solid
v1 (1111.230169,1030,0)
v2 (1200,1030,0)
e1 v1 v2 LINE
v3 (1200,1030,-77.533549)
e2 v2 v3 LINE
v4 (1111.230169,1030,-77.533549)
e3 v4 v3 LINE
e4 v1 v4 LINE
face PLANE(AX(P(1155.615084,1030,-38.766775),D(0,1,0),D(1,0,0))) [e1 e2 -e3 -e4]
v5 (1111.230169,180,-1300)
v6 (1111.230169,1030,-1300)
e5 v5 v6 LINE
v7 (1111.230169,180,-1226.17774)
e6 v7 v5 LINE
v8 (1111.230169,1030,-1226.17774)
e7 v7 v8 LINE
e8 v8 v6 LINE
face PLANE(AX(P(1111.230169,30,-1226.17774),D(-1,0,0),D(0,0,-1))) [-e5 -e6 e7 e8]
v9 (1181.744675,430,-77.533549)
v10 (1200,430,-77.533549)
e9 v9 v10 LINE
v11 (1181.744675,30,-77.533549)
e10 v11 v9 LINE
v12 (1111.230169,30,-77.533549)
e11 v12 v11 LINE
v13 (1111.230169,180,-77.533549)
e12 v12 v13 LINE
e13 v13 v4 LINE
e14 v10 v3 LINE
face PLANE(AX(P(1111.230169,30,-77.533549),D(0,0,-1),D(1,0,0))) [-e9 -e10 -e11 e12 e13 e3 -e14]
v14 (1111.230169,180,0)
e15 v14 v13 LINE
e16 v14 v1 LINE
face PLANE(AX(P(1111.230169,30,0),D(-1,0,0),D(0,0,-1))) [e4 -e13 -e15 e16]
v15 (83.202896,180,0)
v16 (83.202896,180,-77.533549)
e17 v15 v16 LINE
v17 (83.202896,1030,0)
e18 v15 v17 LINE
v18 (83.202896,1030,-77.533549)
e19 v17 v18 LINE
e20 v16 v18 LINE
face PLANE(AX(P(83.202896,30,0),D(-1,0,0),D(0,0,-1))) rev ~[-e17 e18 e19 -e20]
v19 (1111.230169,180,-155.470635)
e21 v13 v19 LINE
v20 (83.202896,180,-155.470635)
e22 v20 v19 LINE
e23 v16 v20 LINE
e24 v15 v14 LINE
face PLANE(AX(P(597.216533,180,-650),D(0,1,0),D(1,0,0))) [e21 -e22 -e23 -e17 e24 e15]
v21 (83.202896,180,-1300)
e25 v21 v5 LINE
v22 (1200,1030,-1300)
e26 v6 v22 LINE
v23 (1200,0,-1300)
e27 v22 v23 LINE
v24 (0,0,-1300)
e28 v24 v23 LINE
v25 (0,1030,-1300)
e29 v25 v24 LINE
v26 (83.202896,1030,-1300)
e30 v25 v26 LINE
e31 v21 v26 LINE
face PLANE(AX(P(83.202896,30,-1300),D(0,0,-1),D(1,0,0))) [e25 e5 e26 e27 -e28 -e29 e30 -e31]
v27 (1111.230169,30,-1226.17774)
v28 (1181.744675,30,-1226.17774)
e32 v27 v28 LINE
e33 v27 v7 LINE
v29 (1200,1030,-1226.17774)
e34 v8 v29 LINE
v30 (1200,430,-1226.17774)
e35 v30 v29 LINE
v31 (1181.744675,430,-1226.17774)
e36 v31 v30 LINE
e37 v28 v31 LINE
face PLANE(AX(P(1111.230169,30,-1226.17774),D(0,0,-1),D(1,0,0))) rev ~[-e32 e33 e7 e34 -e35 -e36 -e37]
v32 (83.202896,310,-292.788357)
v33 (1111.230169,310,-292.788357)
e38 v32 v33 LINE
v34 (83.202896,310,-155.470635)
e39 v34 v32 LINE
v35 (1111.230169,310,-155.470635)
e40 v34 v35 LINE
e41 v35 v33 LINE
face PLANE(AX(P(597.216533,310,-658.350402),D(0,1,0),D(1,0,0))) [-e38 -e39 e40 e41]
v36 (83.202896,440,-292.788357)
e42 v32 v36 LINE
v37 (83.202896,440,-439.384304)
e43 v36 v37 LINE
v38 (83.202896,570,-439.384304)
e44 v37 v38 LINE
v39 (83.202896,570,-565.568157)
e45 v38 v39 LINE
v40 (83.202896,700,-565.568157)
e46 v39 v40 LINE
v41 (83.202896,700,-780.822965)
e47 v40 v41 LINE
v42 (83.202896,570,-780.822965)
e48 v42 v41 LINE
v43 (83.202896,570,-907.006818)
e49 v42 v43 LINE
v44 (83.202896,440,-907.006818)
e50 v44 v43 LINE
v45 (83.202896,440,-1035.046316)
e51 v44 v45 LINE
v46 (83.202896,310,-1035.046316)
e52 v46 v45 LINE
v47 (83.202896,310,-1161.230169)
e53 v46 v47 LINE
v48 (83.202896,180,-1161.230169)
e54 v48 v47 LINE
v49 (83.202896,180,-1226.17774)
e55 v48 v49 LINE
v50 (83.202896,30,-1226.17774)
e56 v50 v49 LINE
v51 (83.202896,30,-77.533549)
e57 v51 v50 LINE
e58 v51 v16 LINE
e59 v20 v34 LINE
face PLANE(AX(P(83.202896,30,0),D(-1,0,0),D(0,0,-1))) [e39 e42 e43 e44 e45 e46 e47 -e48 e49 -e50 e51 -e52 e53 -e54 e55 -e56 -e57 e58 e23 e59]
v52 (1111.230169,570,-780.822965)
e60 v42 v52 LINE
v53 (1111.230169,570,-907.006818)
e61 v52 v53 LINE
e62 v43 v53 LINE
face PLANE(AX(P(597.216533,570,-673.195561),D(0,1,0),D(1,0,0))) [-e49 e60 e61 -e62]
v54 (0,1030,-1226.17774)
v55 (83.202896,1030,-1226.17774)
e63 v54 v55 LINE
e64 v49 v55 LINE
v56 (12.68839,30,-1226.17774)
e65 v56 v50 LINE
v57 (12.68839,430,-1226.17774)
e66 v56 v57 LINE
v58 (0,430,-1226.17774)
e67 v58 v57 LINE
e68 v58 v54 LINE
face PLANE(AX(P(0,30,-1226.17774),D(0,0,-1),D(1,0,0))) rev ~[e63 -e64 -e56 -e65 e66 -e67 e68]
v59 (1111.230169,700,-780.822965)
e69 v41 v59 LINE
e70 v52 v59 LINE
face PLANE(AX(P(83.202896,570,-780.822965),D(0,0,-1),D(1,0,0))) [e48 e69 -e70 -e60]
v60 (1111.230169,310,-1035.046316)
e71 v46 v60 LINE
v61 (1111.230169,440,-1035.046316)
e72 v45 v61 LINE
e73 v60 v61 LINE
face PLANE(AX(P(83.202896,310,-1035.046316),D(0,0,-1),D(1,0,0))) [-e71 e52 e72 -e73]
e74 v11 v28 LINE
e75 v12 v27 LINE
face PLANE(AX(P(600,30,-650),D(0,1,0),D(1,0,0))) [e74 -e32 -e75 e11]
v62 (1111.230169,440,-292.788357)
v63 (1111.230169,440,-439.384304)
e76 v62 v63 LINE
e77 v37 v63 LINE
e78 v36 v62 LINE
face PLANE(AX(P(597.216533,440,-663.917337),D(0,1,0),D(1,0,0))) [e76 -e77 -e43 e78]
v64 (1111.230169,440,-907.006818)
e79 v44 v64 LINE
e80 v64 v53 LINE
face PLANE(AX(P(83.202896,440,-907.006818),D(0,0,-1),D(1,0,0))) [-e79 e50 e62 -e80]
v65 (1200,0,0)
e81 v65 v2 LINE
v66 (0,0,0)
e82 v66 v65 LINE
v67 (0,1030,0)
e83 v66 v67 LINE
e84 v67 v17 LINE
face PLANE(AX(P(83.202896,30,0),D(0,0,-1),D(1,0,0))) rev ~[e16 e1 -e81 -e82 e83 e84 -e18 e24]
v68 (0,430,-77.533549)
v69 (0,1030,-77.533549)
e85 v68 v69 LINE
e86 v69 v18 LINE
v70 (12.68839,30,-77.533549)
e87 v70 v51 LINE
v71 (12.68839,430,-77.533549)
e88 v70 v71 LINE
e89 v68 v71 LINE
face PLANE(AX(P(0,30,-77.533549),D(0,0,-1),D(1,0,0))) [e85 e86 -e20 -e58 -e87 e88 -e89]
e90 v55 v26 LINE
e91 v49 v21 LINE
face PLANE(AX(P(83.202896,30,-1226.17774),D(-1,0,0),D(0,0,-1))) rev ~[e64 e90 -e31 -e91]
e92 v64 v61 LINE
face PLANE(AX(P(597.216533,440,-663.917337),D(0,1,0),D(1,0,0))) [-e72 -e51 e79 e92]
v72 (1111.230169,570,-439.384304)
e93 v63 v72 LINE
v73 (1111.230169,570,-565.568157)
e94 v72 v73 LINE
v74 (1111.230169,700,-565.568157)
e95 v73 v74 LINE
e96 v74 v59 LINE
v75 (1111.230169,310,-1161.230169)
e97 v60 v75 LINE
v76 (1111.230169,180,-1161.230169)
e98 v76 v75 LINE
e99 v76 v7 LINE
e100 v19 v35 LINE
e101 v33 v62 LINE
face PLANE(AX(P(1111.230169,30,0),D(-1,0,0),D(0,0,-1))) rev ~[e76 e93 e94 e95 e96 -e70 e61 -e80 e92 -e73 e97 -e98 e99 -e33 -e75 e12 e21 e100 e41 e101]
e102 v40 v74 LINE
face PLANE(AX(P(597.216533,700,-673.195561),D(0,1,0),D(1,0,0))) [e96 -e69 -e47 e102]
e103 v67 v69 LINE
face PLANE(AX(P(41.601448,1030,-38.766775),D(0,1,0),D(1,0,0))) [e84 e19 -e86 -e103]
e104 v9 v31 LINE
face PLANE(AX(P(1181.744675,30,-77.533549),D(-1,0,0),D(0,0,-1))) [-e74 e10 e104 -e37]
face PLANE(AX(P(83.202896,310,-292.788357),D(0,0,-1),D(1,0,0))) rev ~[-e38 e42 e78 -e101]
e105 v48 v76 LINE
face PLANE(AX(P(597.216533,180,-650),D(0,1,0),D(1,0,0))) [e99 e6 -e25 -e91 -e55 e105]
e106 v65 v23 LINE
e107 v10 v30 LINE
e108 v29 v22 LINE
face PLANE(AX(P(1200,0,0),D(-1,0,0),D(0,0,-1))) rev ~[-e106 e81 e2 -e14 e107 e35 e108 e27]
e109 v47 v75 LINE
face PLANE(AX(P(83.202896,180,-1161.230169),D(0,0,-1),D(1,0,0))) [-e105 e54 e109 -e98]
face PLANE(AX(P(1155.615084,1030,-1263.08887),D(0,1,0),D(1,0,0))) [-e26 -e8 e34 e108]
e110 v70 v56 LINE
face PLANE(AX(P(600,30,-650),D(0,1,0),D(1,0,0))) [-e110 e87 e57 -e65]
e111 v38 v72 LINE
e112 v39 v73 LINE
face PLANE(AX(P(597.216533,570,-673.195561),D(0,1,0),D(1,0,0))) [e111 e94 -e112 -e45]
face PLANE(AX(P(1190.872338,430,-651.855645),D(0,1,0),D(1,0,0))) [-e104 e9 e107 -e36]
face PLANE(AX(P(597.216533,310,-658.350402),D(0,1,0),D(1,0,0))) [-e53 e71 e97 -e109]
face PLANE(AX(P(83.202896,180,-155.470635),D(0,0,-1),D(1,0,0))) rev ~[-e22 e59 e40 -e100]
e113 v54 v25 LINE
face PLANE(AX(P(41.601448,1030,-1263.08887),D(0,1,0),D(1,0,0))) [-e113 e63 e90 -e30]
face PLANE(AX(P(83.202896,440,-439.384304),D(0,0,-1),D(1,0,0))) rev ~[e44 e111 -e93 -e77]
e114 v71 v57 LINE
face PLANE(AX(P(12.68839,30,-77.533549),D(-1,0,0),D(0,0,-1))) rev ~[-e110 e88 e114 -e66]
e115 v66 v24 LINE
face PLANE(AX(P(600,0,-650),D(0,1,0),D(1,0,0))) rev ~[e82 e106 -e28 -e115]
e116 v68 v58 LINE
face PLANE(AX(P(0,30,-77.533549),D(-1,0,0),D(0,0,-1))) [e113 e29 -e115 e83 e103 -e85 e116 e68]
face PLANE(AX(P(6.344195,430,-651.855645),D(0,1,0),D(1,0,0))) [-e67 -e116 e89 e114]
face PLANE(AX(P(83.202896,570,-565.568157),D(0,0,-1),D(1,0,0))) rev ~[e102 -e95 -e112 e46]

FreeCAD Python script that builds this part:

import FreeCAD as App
import Part
import Sketcher
from FreeCAD import Vector
Q = App.Units.Quantity

doc = App.newDocument("Part")
params = doc.addObject("Spreadsheet::Sheet", "Params")
for row, (alias, value) in enumerate([
    ("sketch1_width", "1200 mm"),
    ("sketch1_height", "1300 mm"),
    ("pad1_length", "30 mm"),
    ("pad2_length", "1000 mm"),
    ("pad3_length", "400 mm"),
    ("sketch4_height", "1300 mm"),
    ("pad4_length", "150 mm"),
    ("pad5_length", "130 mm"),
    ("pad6_length", "130 mm"),
    ("pad7_length", "130 mm"),
    ("pad8_length", "130 mm"),
], start=1):
    params.set(f"A{row}", alias)
    params.set(f"B{row}", "=" + value)
    params.setAlias(f"B{row}", alias)

body = doc.addObject("PartDesign::Body", "Body")

sketch1 = body.newObject("Sketcher::SketchObject", "Sketch")
sketch1.AttachmentSupport = (doc.getObject("XZ_Plane"), [""])
sketch1.MapMode = "FlatFace"
sketch1.addGeometry([
    Part.LineSegment(Vector(0, -1300, 0), Vector(0, 0, 0)),
    Part.LineSegment(Vector(0, 0, 0), Vector(1200, 0, 0)),
    Part.LineSegment(Vector(1200, 0, 0), Vector(1200, -1300, 0)),
    Part.LineSegment(Vector(1200, -1300, 0), Vector(0, -1300, 0)),
], False)
sketch1.addConstraint([
    Sketcher.Constraint("Coincident", 0, 2, 1, 1),
    Sketcher.Constraint("Coincident", 1, 2, 2, 1),
    Sketcher.Constraint("Coincident", 2, 2, 3, 1),
    Sketcher.Constraint("Coincident", 3, 2, 0, 1),
    Sketcher.Constraint("Vertical", 0),
    Sketcher.Constraint("Horizontal", 1),
    Sketcher.Constraint("Vertical", 2),
    Sketcher.Constraint("Horizontal", 3),
    Sketcher.Constraint("Coincident", 0, 2, -1, 1),
    Sketcher.Constraint("DistanceX", 1, 1, 1, 2, Q("1200 mm")),
    Sketcher.Constraint("DistanceY", 0, 1, 0, 2, Q("1300 mm")),
])
sketch1.setExpression("Constraints[9]", "Params.sketch1_width")
sketch1.setExpression("Constraints[10]", "Params.sketch1_height")
pad1 = body.newObject("PartDesign::Pad", "Pad")
pad1.Profile = sketch1
pad1.setExpression("Length", "Params.pad1_length")
pad1.Reversed = True

sketch2 = body.newObject("Sketcher::SketchObject", "Sketch001")
sketch2.AttachmentSupport = (doc.getObject("XZ_Plane"), [""])
sketch2.MapMode = "FlatFace"
sketch2.AttachmentOffset = App.Placement(Vector(0, 0, -30), App.Rotation())
sketch2.addGeometry([
    Part.LineSegment(Vector(0, -1300, 0), Vector(0, -1226, 0)),
    Part.LineSegment(Vector(0, -1226, 0), Vector(83, -1226, 0)),
    Part.LineSegment(Vector(83, -1226, 0), Vector(83, -1300, 0)),
    Part.LineSegment(Vector(83, -1300, 0), Vector(0, -1300, 0)),
    Part.LineSegment(Vector(1111, -1300, 0), Vector(1111, -1226, 0)),
    Part.LineSegment(Vector(1111, -1226, 0), Vector(1200, -1226, 0)),
    Part.LineSegment(Vector(1200, -1226, 0), Vector(1200, -1300, 0)),
    Part.LineSegment(Vector(1200, -1300, 0), Vector(1111, -1300, 0)),
    Part.LineSegment(Vector(0, -78, 0), Vector(0, 0, 0)),
    Part.LineSegment(Vector(0, 0, 0), Vector(83, 0, 0)),
    Part.LineSegment(Vector(83, 0, 0), Vector(83, -78, 0)),
    Part.LineSegment(Vector(83, -78, 0), Vector(0, -78, 0)),
    Part.LineSegment(Vector(1111, -78, 0), Vector(1111, 0, 0)),
    Part.LineSegment(Vector(1111, 0, 0), Vector(1200, 0, 0)),
    Part.LineSegment(Vector(1200, 0, 0), Vector(1200, -78, 0)),
    Part.LineSegment(Vector(1200, -78, 0), Vector(1111, -78, 0)),
], False)
sketch2.addConstraint([
    Sketcher.Constraint("Coincident", 0, 2, 1, 1),
    Sketcher.Constraint("Coincident", 1, 2, 2, 1),
    Sketcher.Constraint("Coincident", 2, 2, 3, 1),
    Sketcher.Constraint("Coincident", 3, 2, 0, 1),
    Sketcher.Constraint("Coincident", 4, 2, 5, 1),
    Sketcher.Constraint("Coincident", 5, 2, 6, 1),
    Sketcher.Constraint("Coincident", 6, 2, 7, 1),
    Sketcher.Constraint("Coincident", 7, 2, 4, 1),
    Sketcher.Constraint("Coincident", 8, 2, 9, 1),
    Sketcher.Constraint("Coincident", 9, 2, 10, 1),
    Sketcher.Constraint("Coincident", 10, 2, 11, 1),
    Sketcher.Constraint("Coincident", 11, 2, 8, 1),
    Sketcher.Constraint("Coincident", 12, 2, 13, 1),
    Sketcher.Constraint("Coincident", 13, 2, 14, 1),
    Sketcher.Constraint("Coincident", 14, 2, 15, 1),
    Sketcher.Constraint("Coincident", 15, 2, 12, 1),
    Sketcher.Constraint("Vertical", 0),
    Sketcher.Constraint("Horizontal", 1),
    Sketcher.Constraint("Vertical", 2),
    Sketcher.Constraint("Horizontal", 3),
    Sketcher.Constraint("Vertical", 4),
    Sketcher.Constraint("Horizontal", 5),
    Sketcher.Constraint("Vertical", 6),
    Sketcher.Constraint("Horizontal", 7),
    Sketcher.Constraint("Vertical", 8),
    Sketcher.Constraint("Horizontal", 9),
    Sketcher.Constraint("Vertical", 10),
    Sketcher.Constraint("Horizontal", 11),
    Sketcher.Constraint("Vertical", 12),
    Sketcher.Constraint("Horizontal", 13),
    Sketcher.Constraint("Vertical", 14),
    Sketcher.Constraint("Horizontal", 15),
    Sketcher.Constraint("Coincident", 8, 2, -1, 1),
    Sketcher.Constraint("PointOnObject", 0, 2, -2),
    Sketcher.Constraint("PointOnObject", 12, 2, -1),
    Sketcher.Constraint("Horizontal", 1, 2, 4, 2),
    Sketcher.Constraint("Horizontal", 3, 2, 6, 2),
    Sketcher.Constraint("Horizontal", 11, 2, 14, 2),
    Sketcher.Constraint("Vertical", 2, 2, 9, 2),
    Sketcher.Constraint("Vertical", 7, 2, 12, 2),
    Sketcher.Constraint("Vertical", 6, 2, 13, 2),
    Sketcher.Constraint("DistanceY", 2, 2, -1, 1, Q("1300 mm")),
    Sketcher.Constraint("DistanceX", -1, 1, 5, 2, Q("1200 mm")),
    Sketcher.Constraint("DistanceX", 5, 1, 5, 2, Q("88.769831 mm")),
    Sketcher.Constraint("DistanceY", 0, 1, 0, 2, Q("73.82226 mm")),
    Sketcher.Constraint("DistanceY", 8, 1, 8, 2, Q("77.533549 mm")),
    Sketcher.Constraint("DistanceX", 1, 1, 1, 2, Q("83.202896 mm")),
])
pad2 = body.newObject("PartDesign::Pad", "Pad001")
pad2.Profile = sketch2
pad2.setExpression("Length", "Params.pad2_length")
pad2.Reversed = True

sketch3 = body.newObject("Sketcher::SketchObject", "Sketch002")
sketch3.AttachmentSupport = (doc.getObject("XZ_Plane"), [""])
sketch3.MapMode = "FlatFace"
sketch3.AttachmentOffset = App.Placement(Vector(0, 0, -30), App.Rotation())
sketch3.addGeometry([
    Part.LineSegment(Vector(0, -1226, 0), Vector(0, -78, 0)),
    Part.LineSegment(Vector(0, -78, 0), Vector(13, -78, 0)),
    Part.LineSegment(Vector(13, -78, 0), Vector(13, -1226, 0)),
    Part.LineSegment(Vector(13, -1226, 0), Vector(0, -1226, 0)),
    Part.LineSegment(Vector(1182, -1226, 0), Vector(1182, -78, 0)),
    Part.LineSegment(Vector(1182, -78, 0), Vector(1200, -78, 0)),
    Part.LineSegment(Vector(1200, -78, 0), Vector(1200, -1226, 0)),
    Part.LineSegment(Vector(1200, -1226, 0), Vector(1182, -1226, 0)),
], False)
sketch3.addConstraint([
    Sketcher.Constraint("Coincident", 0, 2, 1, 1),
    Sketcher.Constraint("Coincident", 1, 2, 2, 1),
    Sketcher.Constraint("Coincident", 2, 2, 3, 1),
    Sketcher.Constraint("Coincident", 3, 2, 0, 1),
    Sketcher.Constraint("Coincident", 4, 2, 5, 1),
    Sketcher.Constraint("Coincident", 5, 2, 6, 1),
    Sketcher.Constraint("Coincident", 6, 2, 7, 1),
    Sketcher.Constraint("Coincident", 7, 2, 4, 1),
    Sketcher.Constraint("Vertical", 0),
    Sketcher.Constraint("Horizontal", 1),
    Sketcher.Constraint("Vertical", 2),
    Sketcher.Constraint("Horizontal", 3),
    Sketcher.Constraint("Vertical", 4),
    Sketcher.Constraint("Horizontal", 5),
    Sketcher.Constraint("Vertical", 6),
    Sketcher.Constraint("Horizontal", 7),
    Sketcher.Constraint("PointOnObject", 0, 2, -2),
    Sketcher.Constraint("Horizontal", 1, 2, 4, 2),
    Sketcher.Constraint("Horizontal", 3, 2, 6, 2),
    Sketcher.Constraint("DistanceX", -1, 1, 5, 2, Q("1200 mm")),
    Sketcher.Constraint("DistanceX", 1, 1, 1, 2, Q("12.68839 mm")),
    Sketcher.Constraint("DistanceY", 0, 1, 0, 2, Q("1148.644191 mm")),
    Sketcher.Constraint("DistanceX", 5, 1, 5, 2, Q("18.255325 mm")),
    Sketcher.Constraint("DistanceY", 0, 2, -1, 1, Q("77.533549 mm")),
])
pad3 = body.newObject("PartDesign::Pad", "Pad002")
pad3.Profile = sketch3
pad3.setExpression("Length", "Params.pad3_length")
pad3.Reversed = True

sketch4 = body.newObject("Sketcher::SketchObject", "Sketch003")
sketch4.AttachmentSupport = (doc.getObject("XZ_Plane"), [""])
sketch4.MapMode = "FlatFace"
sketch4.AttachmentOffset = App.Placement(Vector(0, 0, -30), App.Rotation())
sketch4.addGeometry([
    Part.LineSegment(Vector(83, -1300, 0), Vector(83, 0, 0)),
    Part.LineSegment(Vector(83, 0, 0), Vector(1111, 0, 0)),
    Part.LineSegment(Vector(1111, 0, 0), Vector(1111, -1300, 0)),
    Part.LineSegment(Vector(1111, -1300, 0), Vector(83, -1300, 0)),
], False)
sketch4.addConstraint([
    Sketcher.Constraint("Coincident", 0, 2, 1, 1),
    Sketcher.Constraint("Coincident", 1, 2, 2, 1),
    Sketcher.Constraint("Coincident", 2, 2, 3, 1),
    Sketcher.Constraint("Coincident", 3, 2, 0, 1),
    Sketcher.Constraint("Vertical", 0),
    Sketcher.Constraint("Horizontal", 1),
    Sketcher.Constraint("Vertical", 2),
    Sketcher.Constraint("Horizontal", 3),
    Sketcher.Constraint("PointOnObject", 0, 2, -1),
    Sketcher.Constraint("DistanceY", 0, 1, 0, 2, Q("1300 mm")),
    Sketcher.Constraint("DistanceX", 1, 1, 1, 2, Q("1028.027273 mm")),
    Sketcher.Constraint("DistanceX", -1, 1, 1, 2, Q("1111.230169 mm")),
])
sketch4.setExpression("Constraints[9]", "Params.sketch4_height")
pad4 = body.newObject("PartDesign::Pad", "Pad003")
pad4.Profile = sketch4
pad4.setExpression("Length", "Params.pad4_length")
pad4.Reversed = True

sketch5 = body.newObject("Sketcher::SketchObject", "Sketch004")
sketch5.AttachmentSupport = (doc.getObject("XZ_Plane"), [""])
sketch5.MapMode = "FlatFace"
sketch5.AttachmentOffset = App.Placement(Vector(0, 0, -180), App.Rotation())
sketch5.addGeometry([
    Part.LineSegment(Vector(83, -1161, 0), Vector(83, -155, 0)),
    Part.LineSegment(Vector(83, -155, 0), Vector(1111, -155, 0)),
    Part.LineSegment(Vector(1111, -155, 0), Vector(1111, -1161, 0)),
    Part.LineSegment(Vector(1111, -1161, 0), Vector(83, -1161, 0)),
], False)
sketch5.addConstraint([
    Sketcher.Constraint("Coincident", 0, 2, 1, 1),
    Sketcher.Constraint("Coincident", 1, 2, 2, 1),
    Sketcher.Constraint("Coincident", 2, 2, 3, 1),
    Sketcher.Constraint("Coincident", 3, 2, 0, 1),
    Sketcher.Constraint("Vertical", 0),
    Sketcher.Constraint("Horizontal", 1),
    Sketcher.Constraint("Vertical", 2),
    Sketcher.Constraint("Horizontal", 3),
    Sketcher.Constraint("DistanceX", 1, 1, 1, 2, Q("1028.027273 mm")),
    Sketcher.Constraint("DistanceY", 0, 1, 0, 2, Q("1005.759534 mm")),
    Sketcher.Constraint("DistanceX", -1, 1, 1, 2, Q("1111.230169 mm")),
    Sketcher.Constraint("DistanceY", 2, 2, -1, 1, Q("1161.230169 mm")),
])
pad5 = body.newObject("PartDesign::Pad", "Pad004")
pad5.Profile = sketch5
pad5.setExpression("Length", "Params.pad5_length")
pad5.Reversed = True

sketch6 = body.newObject("Sketcher::SketchObject", "Sketch005")
sketch6.AttachmentSupport = (doc.getObject("XZ_Plane"), [""])
sketch6.MapMode = "FlatFace"
sketch6.AttachmentOffset = App.Placement(Vector(0, 0, -310), App.Rotation())
sketch6.addGeometry([
    Part.LineSegment(Vector(83, -1035, 0), Vector(83, -293, 0)),
    Part.LineSegment(Vector(83, -293, 0), Vector(1111, -293, 0)),
    Part.LineSegment(Vector(1111, -293, 0), Vector(1111, -1035, 0)),
    Part.LineSegment(Vector(1111, -1035, 0), Vector(83, -1035, 0)),
], False)
sketch6.addConstraint([
    Sketcher.Constraint("Coincident", 0, 2, 1, 1),
    Sketcher.Constraint("Coincident", 1, 2, 2, 1),
    Sketcher.Constraint("Coincident", 2, 2, 3, 1),
    Sketcher.Constraint("Coincident", 3, 2, 0, 1),
    Sketcher.Constraint("Vertical", 0),
    Sketcher.Constraint("Horizontal", 1),
    Sketcher.Constraint("Vertical", 2),
    Sketcher.Constraint("Horizontal", 3),
    Sketcher.Constraint("DistanceY", 0, 1, 0, 2, Q("742.257959 mm")),
    Sketcher.Constraint("DistanceX", 1, 1, 1, 2, Q("1028.027273 mm")),
    Sketcher.Constraint("DistanceX", -1, 1, 1, 2, Q("1111.230169 mm")),
    Sketcher.Constraint("DistanceY", 0, 2, -1, 1, Q("292.788357 mm")),
])
pad6 = body.newObject("PartDesign::Pad", "Pad005")
pad6.Profile = sketch6
pad6.setExpression("Length", "Params.pad6_length")
pad6.Reversed = True

sketch7 = body.newObject("Sketcher::SketchObject", "Sketch006")
sketch7.AttachmentSupport = (doc.getObject("XZ_Plane"), [""])
sketch7.MapMode = "FlatFace"
sketch7.AttachmentOffset = App.Placement(Vector(0, 0, -440), App.Rotation())
sketch7.addGeometry([
    Part.LineSegment(Vector(83, -907, 0), Vector(83, -439, 0)),
    Part.LineSegment(Vector(83, -439, 0), Vector(1111, -439, 0)),
    Part.LineSegment(Vector(1111, -439, 0), Vector(1111, -907, 0)),
    Part.LineSegment(Vector(1111, -907, 0), Vector(83, -907, 0)),
], False)
sketch7.addConstraint([
    Sketcher.Constraint("Coincident", 0, 2, 1, 1),
    Sketcher.Constraint("Coincident", 1, 2, 2, 1),
    Sketcher.Constraint("Coincident", 2, 2, 3, 1),
    Sketcher.Constraint("Coincident", 3, 2, 0, 1),
    Sketcher.Constraint("Vertical", 0),
    Sketcher.Constraint("Horizontal", 1),
    Sketcher.Constraint("Vertical", 2),
    Sketcher.Constraint("Horizontal", 3),
    Sketcher.Constraint("DistanceX", 1, 1, 1, 2, Q("1028.027273 mm")),
    Sketcher.Constraint("DistanceY", 0, 1, 0, 2, Q("467.622514 mm")),
    Sketcher.Constraint("DistanceX", -1, 1, 1, 2, Q("1111.230169 mm")),
    Sketcher.Constraint("DistanceY", 2, 2, -1, 1, Q("907.006818 mm")),
])
pad7 = body.newObject("PartDesign::Pad", "Pad006")
pad7.Profile = sketch7
pad7.setExpression("Length", "Params.pad7_length")
pad7.Reversed = True

sketch8 = body.newObject("Sketcher::SketchObject", "Sketch007")
sketch8.AttachmentSupport = (doc.getObject("XZ_Plane"), [""])
sketch8.MapMode = "FlatFace"
sketch8.AttachmentOffset = App.Placement(Vector(0, 0, -570), App.Rotation())
sketch8.addGeometry([
    Part.LineSegment(Vector(83, -781, 0), Vector(83, -566, 0)),
    Part.LineSegment(Vector(83, -566, 0), Vector(1111, -566, 0)),
    Part.LineSegment(Vector(1111, -566, 0), Vector(1111, -781, 0)),
    Part.LineSegment(Vector(1111, -781, 0), Vector(83, -781, 0)),
], False)
sketch8.addConstraint([
    Sketcher.Constraint("Coincident", 0, 2, 1, 1),
    Sketcher.Constraint("Coincident", 1, 2, 2, 1),
    Sketcher.Constraint("Coincident", 2, 2, 3, 1),
    Sketcher.Constraint("Coincident", 3, 2, 0, 1),
    Sketcher.Constraint("Vertical", 0),
    Sketcher.Constraint("Horizontal", 1),
    Sketcher.Constraint("Vertical", 2),
    Sketcher.Constraint("Horizontal", 3),
    Sketcher.Constraint("DistanceX", 1, 1, 1, 2, Q("1028.027273 mm")),
    Sketcher.Constraint("DistanceY", 0, 1, 0, 2, Q("215.254808 mm")),
    Sketcher.Constraint("DistanceX", -1, 1, 1, 2, Q("1111.230169 mm")),
    Sketcher.Constraint("DistanceY", 0, 2, -1, 1, Q("565.568157 mm")),
])
pad8 = body.newObject("PartDesign::Pad", "Pad007")
pad8.Profile = sketch8
pad8.setExpression("Length", "Params.pad8_length")
pad8.Reversed = True

doc.recompute()
